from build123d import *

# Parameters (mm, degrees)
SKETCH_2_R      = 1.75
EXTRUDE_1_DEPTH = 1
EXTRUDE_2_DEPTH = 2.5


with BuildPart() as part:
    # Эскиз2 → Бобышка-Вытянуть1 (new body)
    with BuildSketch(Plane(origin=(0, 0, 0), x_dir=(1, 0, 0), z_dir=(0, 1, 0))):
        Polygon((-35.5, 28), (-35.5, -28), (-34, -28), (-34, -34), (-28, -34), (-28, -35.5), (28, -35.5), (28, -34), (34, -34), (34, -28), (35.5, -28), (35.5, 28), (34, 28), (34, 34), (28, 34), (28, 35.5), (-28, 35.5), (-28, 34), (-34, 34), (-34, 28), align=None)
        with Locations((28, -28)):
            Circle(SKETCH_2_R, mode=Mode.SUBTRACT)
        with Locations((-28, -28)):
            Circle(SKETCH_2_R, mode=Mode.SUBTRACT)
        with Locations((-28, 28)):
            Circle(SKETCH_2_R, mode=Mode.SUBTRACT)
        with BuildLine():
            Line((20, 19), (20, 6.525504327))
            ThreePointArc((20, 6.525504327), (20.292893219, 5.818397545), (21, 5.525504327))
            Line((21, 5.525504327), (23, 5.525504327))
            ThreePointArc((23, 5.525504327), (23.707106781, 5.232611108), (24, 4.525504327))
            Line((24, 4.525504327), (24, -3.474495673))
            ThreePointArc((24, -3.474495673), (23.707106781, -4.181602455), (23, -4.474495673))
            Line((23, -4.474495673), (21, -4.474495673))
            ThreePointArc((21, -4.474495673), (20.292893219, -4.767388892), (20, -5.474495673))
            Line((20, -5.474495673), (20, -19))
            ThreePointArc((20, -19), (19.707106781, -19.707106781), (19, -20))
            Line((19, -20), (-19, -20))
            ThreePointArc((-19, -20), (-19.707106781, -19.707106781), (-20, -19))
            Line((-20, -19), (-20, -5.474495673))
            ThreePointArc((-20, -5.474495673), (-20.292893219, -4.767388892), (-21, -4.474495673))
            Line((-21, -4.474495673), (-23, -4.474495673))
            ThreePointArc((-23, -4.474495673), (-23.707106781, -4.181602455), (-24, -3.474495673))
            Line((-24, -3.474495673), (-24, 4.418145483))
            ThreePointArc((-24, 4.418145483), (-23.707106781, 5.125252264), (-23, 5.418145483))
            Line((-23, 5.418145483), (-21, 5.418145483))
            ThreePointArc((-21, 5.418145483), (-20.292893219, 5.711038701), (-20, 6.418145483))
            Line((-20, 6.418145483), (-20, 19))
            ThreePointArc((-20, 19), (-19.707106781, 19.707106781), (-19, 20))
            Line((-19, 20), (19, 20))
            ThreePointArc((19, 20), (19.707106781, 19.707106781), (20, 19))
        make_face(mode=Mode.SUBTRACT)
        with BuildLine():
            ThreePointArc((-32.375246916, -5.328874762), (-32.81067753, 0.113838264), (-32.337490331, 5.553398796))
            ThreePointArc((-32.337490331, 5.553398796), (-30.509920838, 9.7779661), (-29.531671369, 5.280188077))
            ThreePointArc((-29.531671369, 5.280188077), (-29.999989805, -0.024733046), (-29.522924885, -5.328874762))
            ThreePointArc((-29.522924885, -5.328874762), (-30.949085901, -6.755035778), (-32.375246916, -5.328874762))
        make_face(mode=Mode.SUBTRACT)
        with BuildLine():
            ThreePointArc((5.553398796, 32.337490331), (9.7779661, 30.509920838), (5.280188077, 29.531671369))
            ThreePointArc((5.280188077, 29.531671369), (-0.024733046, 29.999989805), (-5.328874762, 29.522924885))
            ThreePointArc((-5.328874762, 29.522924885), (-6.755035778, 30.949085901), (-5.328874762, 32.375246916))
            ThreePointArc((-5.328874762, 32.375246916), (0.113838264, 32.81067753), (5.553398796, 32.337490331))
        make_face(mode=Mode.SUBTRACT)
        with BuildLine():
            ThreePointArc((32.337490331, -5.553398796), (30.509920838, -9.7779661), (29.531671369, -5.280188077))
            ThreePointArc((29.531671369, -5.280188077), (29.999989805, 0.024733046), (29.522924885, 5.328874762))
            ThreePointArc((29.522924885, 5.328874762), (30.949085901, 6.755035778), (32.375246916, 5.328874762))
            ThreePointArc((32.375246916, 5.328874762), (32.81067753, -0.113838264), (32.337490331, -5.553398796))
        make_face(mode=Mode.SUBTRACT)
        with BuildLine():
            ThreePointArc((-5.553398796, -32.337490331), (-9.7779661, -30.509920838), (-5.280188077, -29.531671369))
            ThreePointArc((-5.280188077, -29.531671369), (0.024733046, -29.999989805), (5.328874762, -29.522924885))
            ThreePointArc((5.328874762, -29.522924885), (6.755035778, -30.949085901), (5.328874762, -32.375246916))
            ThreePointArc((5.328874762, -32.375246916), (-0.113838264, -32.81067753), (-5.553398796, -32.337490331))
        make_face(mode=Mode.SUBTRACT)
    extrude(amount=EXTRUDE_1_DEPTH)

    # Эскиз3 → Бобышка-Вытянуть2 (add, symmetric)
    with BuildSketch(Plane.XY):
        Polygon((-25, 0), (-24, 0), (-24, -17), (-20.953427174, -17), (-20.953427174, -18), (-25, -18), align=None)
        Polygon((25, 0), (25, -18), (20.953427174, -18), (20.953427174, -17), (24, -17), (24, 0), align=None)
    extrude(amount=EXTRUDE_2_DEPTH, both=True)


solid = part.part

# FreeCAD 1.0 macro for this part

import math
import FreeCAD as App
import Part
import Sketcher

V = App.Vector

doc = App.newDocument("Part")
body = doc.addObject("PartDesign::Body", "Body")

sketch1 = body.newObject("Sketcher::SketchObject", "Sketch")
sketch1.AttachmentSupport = (doc.getObject("XZ_Plane"), [""])
sketch1.MapMode = "FlatFace"
sketch1.addGeometry(Part.LineSegment(V(-35.5, -28, 0), V(-35.5, 28, 0)), False)
sketch1.addGeometry(Part.LineSegment(V(-35.5, 28, 0), V(-34, 28, 0)), False)
sketch1.addGeometry(Part.LineSegment(V(-34, 28, 0), V(-34, 34, 0)), False)
sketch1.addGeometry(Part.LineSegment(V(-34, 34, 0), V(-28, 34, 0)), False)
sketch1.addGeometry(Part.LineSegment(V(-28, 34, 0), V(-28, 35.5, 0)), False)
sketch1.addGeometry(Part.LineSegment(V(-28, 35.5, 0), V(28, 35.5, 0)), False)
sketch1.addGeometry(Part.LineSegment(V(28, 35.5, 0), V(28, 34, 0)), False)
sketch1.addGeometry(Part.LineSegment(V(28, 34, 0), V(34, 34, 0)), False)
sketch1.addGeometry(Part.LineSegment(V(34, 34, 0), V(34, 28, 0)), False)
sketch1.addGeometry(Part.LineSegment(V(34, 28, 0), V(35.5, 28, 0)), False)
sketch1.addGeometry(Part.LineSegment(V(35.5, 28, 0), V(35.5, -28, 0)), False)
sketch1.addGeometry(Part.LineSegment(V(35.5, -28, 0), V(34, -28, 0)), False)
sketch1.addGeometry(Part.LineSegment(V(34, -28, 0), V(34, -34, 0)), False)
sketch1.addGeometry(Part.LineSegment(V(34, -34, 0), V(28, -34, 0)), False)
sketch1.addGeometry(Part.LineSegment(V(28, -34, 0), V(28, -35.5, 0)), False)
sketch1.addGeometry(Part.LineSegment(V(28, -35.5, 0), V(-28, -35.5, 0)), False)
sketch1.addGeometry(Part.LineSegment(V(-28, -35.5, 0), V(-28, -34, 0)), False)
sketch1.addGeometry(Part.LineSegment(V(-28, -34, 0), V(-34, -34, 0)), False)
sketch1.addGeometry(Part.LineSegment(V(-34, -34, 0), V(-34, -28, 0)), False)
sketch1.addGeometry(Part.LineSegment(V(-34, -28, 0), V(-35.5, -28, 0)), False)
sketch1.addGeometry(Part.Circle(V(-28, 28, 0), V(0, 0, 1), 1.8), False)
sketch1.addGeometry(Part.ArcOfCircle(Part.Circle(V(0, 0, 0), V(0, 0, 1), 32.8), math.radians(80.65), math.radians(99.74)), False)
sketch1.addGeometry(Part.ArcOfCircle(Part.Circle(V(-7.4, 30.7, 0), V(0, 0, 1), 2.4), math.radians(41), math.radians(330)), False)
sketch1.addGeometry(Part.ArcOfCircle(Part.Circle(V(0, 0, 0), V(0, 0, 1), 30), math.radians(80), math.radians(100)), False)
sketch1.addGeometry(Part.ArcOfCircle(Part.Circle(V(5.3, 30.9, 0), V(0, 0, 1), 1.4), math.radians(-90), math.radians(90)), False)
sketch1.addGeometry(Part.Circle(V(28, 28, 0), V(0, 0, 1), 1.8), False)
sketch1.addGeometry(Part.ArcOfCircle(Part.Circle(V(0, 0, 0), V(0, 0, 1), 32.8), math.radians(-9.35), math.radians(9.74)), False)
sketch1.addGeometry(Part.ArcOfCircle(Part.Circle(V(30.7, 7.4, 0), V(0, 0, 1), 2.4), math.radians(-49), math.radians(240)), False)
sketch1.addGeometry(Part.ArcOfCircle(Part.Circle(V(0, 0, 0), V(0, 0, 1), 30), math.radians(-10), math.radians(10)), False)
sketch1.addGeometry(Part.ArcOfCircle(Part.Circle(V(30.9, -5.3, 0), V(0, 0, 1), 1.4), math.radians(180), math.radians(360)), False)
sketch1.addGeometry(Part.ArcOfCircle(Part.Circle(V(-30.9, 5.3, 0), V(0, 0, 1), 1.4), math.radians(0), math.radians(180)), False)
sketch1.addGeometry(Part.ArcOfCircle(Part.Circle(V(0, 0, 0), V(0, 0, 1), 32.8), math.radians(170.65), math.radians(189.74)), False)
sketch1.addGeometry(Part.ArcOfCircle(Part.Circle(V(-30.7, -7.4, 0), V(0, 0, 1), 2.4), math.radians(131), math.radians(420)), False)
sketch1.addGeometry(Part.ArcOfCircle(Part.Circle(V(0, 0, 0), V(0, 0, 1), 30), math.radians(170), math.radians(190)), False)
sketch1.addGeometry(Part.Circle(V(-28, -28, 0), V(0, 0, 1), 1.8), False)
sketch1.addGeometry(Part.ArcOfCircle(Part.Circle(V(19, -19, 0), V(0, 0, 1), 1), math.radians(-90), math.radians(0)), False)
sketch1.addGeometry(Part.LineSegment(V(20, -19, 0), V(20, -6.5, 0)), False)
sketch1.addGeometry(Part.ArcOfCircle(Part.Circle(V(21, -6.5, 0), V(0, 0, 1), 1), math.radians(90), math.radians(180)), False)
sketch1.addGeometry(Part.LineSegment(V(21, -5.5, 0), V(23, -5.5, 0)), False)
sketch1.addGeometry(Part.ArcOfCircle(Part.Circle(V(23, -4.5, 0), V(0, 0, 1), 1), math.radians(-90), math.radians(0)), False)
sketch1.addGeometry(Part.LineSegment(V(24, -4.5, 0), V(24, 3.5, 0)), False)
sketch1.addGeometry(Part.ArcOfCircle(Part.Circle(V(23, 3.5, 0), V(0, 0, 1), 1), math.radians(0), math.radians(90)), False)
sketch1.addGeometry(Part.LineSegment(V(23, 4.5, 0), V(21, 4.5, 0)), False)
sketch1.addGeometry(Part.ArcOfCircle(Part.Circle(V(21, 5.5, 0), V(0, 0, 1), 1), math.radians(-180), math.radians(-90)), False)
sketch1.addGeometry(Part.LineSegment(V(20, 5.5, 0), V(20, 19, 0)), False)
sketch1.addGeometry(Part.ArcOfCircle(Part.Circle(V(19, 19, 0), V(0, 0, 1), 1), math.radians(0), math.radians(90)), False)
sketch1.addGeometry(Part.LineSegment(V(19, 20, 0), V(-19, 20, 0)), False)
sketch1.addGeometry(Part.ArcOfCircle(Part.Circle(V(-19, 19, 0), V(0, 0, 1), 1), math.radians(90), math.radians(180)), False)
sketch1.addGeometry(Part.LineSegment(V(-20, 19, 0), V(-20, 5.5, 0)), False)
sketch1.addGeometry(Part.ArcOfCircle(Part.Circle(V(-21, 5.5, 0), V(0, 0, 1), 1), math.radians(-90), math.radians(0)), False)
sketch1.addGeometry(Part.LineSegment(V(-21, 4.5, 0), V(-23, 4.5, 0)), False)
sketch1.addGeometry(Part.ArcOfCircle(Part.Circle(V(-23, 3.5, 0), V(0, 0, 1), 1), math.radians(90), math.radians(180)), False)
sketch1.addGeometry(Part.LineSegment(V(-24, 3.5, 0), V(-24, -4.4, 0)), False)
sketch1.addGeometry(Part.ArcOfCircle(Part.Circle(V(-23, -4.4, 0), V(0, 0, 1), 1), math.radians(-180), math.radians(-90)), False)
sketch1.addGeometry(Part.LineSegment(V(-23, -5.4, 0), V(-21, -5.4, 0)), False)
sketch1.addGeometry(Part.ArcOfCircle(Part.Circle(V(-21, -6.4, 0), V(0, 0, 1), 1), math.radians(0), math.radians(90)), False)
sketch1.addGeometry(Part.LineSegment(V(-20, -6.4, 0), V(-20, -19, 0)), False)
sketch1.addGeometry(Part.ArcOfCircle(Part.Circle(V(-19, -19, 0), V(0, 0, 1), 1), math.radians(-180), math.radians(-90)), False)
sketch1.addGeometry(Part.LineSegment(V(-19, -20, 0), V(19, -20, 0)), False)
sketch1.addGeometry(Part.ArcOfCircle(Part.Circle(V(0, 0, 0), V(0, 0, 1), 32.8), math.radians(-99.35), math.radians(-80.26)), False)
sketch1.addGeometry(Part.ArcOfCircle(Part.Circle(V(7.4, -30.7, 0), V(0, 0, 1), 2.4), math.radians(-139), math.radians(150)), False)
sketch1.addGeometry(Part.ArcOfCircle(Part.Circle(V(0, 0, 0), V(0, 0, 1), 30), math.radians(-100), math.radians(-80)), False)
sketch1.addGeometry(Part.ArcOfCircle(Part.Circle(V(-5.3, -30.9, 0), V(0, 0, 1), 1.4), math.radians(90), math.radians(270)), False)
sketch1.addConstraint(Sketcher.Constraint("Coincident", 0, 2, 1, 1))
sketch1.addConstraint(Sketcher.Constraint("Coincident", 1, 2, 2, 1))
sketch1.addConstraint(Sketcher.Constraint("Coincident", 2, 2, 3, 1))
sketch1.addConstraint(Sketcher.Constraint("Coincident", 3, 2, 4, 1))
sketch1.addConstraint(Sketcher.Constraint("Coincident", 4, 2, 5, 1))
sketch1.addConstraint(Sketcher.Constraint("Coincident", 5, 2, 6, 1))
sketch1.addConstraint(Sketcher.Constraint("Coincident", 6, 2, 7, 1))
sketch1.addConstraint(Sketcher.Constraint("Coincident", 7, 2, 8, 1))
sketch1.addConstraint(Sketcher.Constraint("Coincident", 8, 2, 9, 1))
sketch1.addConstraint(Sketcher.Constraint("Coincident", 9, 2, 10, 1))
sketch1.addConstraint(Sketcher.Constraint("Coincident", 10, 2, 11, 1))
sketch1.addConstraint(Sketcher.Constraint("Coincident", 11, 2, 12, 1))
sketch1.addConstraint(Sketcher.Constraint("Coincident", 12, 2, 13, 1))
sketch1.addConstraint(Sketcher.Constraint("Coincident", 13, 2, 14, 1))
sketch1.addConstraint(Sketcher.Constraint("Coincident", 14, 2, 15, 1))
sketch1.addConstraint(Sketcher.Constraint("Coincident", 15, 2, 16, 1))
sketch1.addConstraint(Sketcher.Constraint("Coincident", 16, 2, 17, 1))
sketch1.addConstraint(Sketcher.Constraint("Coincident", 17, 2, 18, 1))
sketch1.addConstraint(Sketcher.Constraint("Coincident", 18, 2, 19, 1))
sketch1.addConstraint(Sketcher.Constraint("Coincident", 19, 2, 0, 1))
sketch1.addConstraint(Sketcher.Constraint("Coincident", 21, 2, 22, 1))
sketch1.addConstraint(Sketcher.Constraint("Coincident", 22, 2, 23, 2))
sketch1.addConstraint(Sketcher.Constraint("Coincident", 23, 1, 24, 1))
sketch1.addConstraint(Sketcher.Constraint("Coincident", 24, 2, 21, 1))
sketch1.addConstraint(Sketcher.Constraint("Coincident", 26, 2, 27, 1))
sketch1.addConstraint(Sketcher.Constraint("Coincident", 27, 2, 28, 2))
sketch1.addConstraint(Sketcher.Constraint("Coincident", 28, 1, 29, 1))
sketch1.addConstraint(Sketcher.Constraint("Coincident", 29, 2, 26, 1))
sketch1.addConstraint(Sketcher.Constraint("Coincident", 30, 2, 31, 1))
sketch1.addConstraint(Sketcher.Constraint("Coincident", 31, 2, 32, 1))
sketch1.addConstraint(Sketcher.Constraint("Coincident", 32, 2, 33, 2))
sketch1.addConstraint(Sketcher.Constraint("Coincident", 33, 1, 30, 1))
sketch1.addConstraint(Sketcher.Constraint("Tangent", 35, 2, 36, 1))
sketch1.addConstraint(Sketcher.Constraint("Tangent", 36, 2, 37, 2))
sketch1.addConstraint(Sketcher.Constraint("Tangent", 37, 1, 38, 1))
sketch1.addConstraint(Sketcher.Constraint("Tangent", 38, 2, 39, 1))
sketch1.addConstraint(Sketcher.Constraint("Tangent", 39, 2, 40, 1))
sketch1.addConstraint(Sketcher.Constraint("Tangent", 40, 2, 41, 1))
sketch1.addConstraint(Sketcher.Constraint("Tangent", 41, 2, 42, 1))
sketch1.addConstraint(Sketcher.Constraint("Tangent", 42, 2, 43, 2))
sketch1.addConstraint(Sketcher.Constraint("Tangent", 43, 1, 44, 1))
sketch1.addConstraint(Sketcher.Constraint("Tangent", 44, 2, 45, 1))
sketch1.addConstraint(Sketcher.Constraint("Tangent", 45, 2, 46, 1))
sketch1.addConstraint(Sketcher.Constraint("Tangent", 46, 2, 47, 1))
sketch1.addConstraint(Sketcher.Constraint("Tangent", 47, 2, 48, 1))
sketch1.addConstraint(Sketcher.Constraint("Tangent", 48, 2, 49, 2))
sketch1.addConstraint(Sketcher.Constraint("Tangent", 49, 1, 50, 1))
sketch1.addConstraint(Sketcher.Constraint("Tangent", 50, 2, 51, 1))
sketch1.addConstraint(Sketcher.Constraint("Tangent", 51, 2, 52, 1))
sketch1.addConstraint(Sketcher.Constraint("Tangent", 52, 2, 53, 1))
sketch1.addConstraint(Sketcher.Constraint("Tangent", 53, 2, 54, 1))
sketch1.addConstraint(Sketcher.Constraint("Tangent", 54, 2, 55, 2))
sketch1.addConstraint(Sketcher.Constraint("Tangent", 55, 1, 56, 1))
sketch1.addConstraint(Sketcher.Constraint("Tangent", 56, 2, 57, 1))
sketch1.addConstraint(Sketcher.Constraint("Tangent", 57, 2, 58, 1))
sketch1.addConstraint(Sketcher.Constraint("Tangent", 58, 2, 35, 1))
sketch1.addConstraint(Sketcher.Constraint("Coincident", 59, 2, 60, 1))
sketch1.addConstraint(Sketcher.Constraint("Coincident", 60, 2, 61, 2))
sketch1.addConstraint(Sketcher.Constraint("Coincident", 61, 1, 62, 1))
sketch1.addConstraint(Sketcher.Constraint("Coincident", 62, 2, 59, 1))
sketch1.addConstraint(Sketcher.Constraint("Vertical", 0))
sketch1.addConstraint(Sketcher.Constraint("Horizontal", 1))
sketch1.addConstraint(Sketcher.Constraint("Vertical", 2))
sketch1.addConstraint(Sketcher.Constraint("Horizontal", 3))
sketch1.addConstraint(Sketcher.Constraint("Vertical", 4))
sketch1.addConstraint(Sketcher.Constraint("Horizontal", 5))
sketch1.addConstraint(Sketcher.Constraint("Vertical", 6))
sketch1.addConstraint(Sketcher.Constraint("Horizontal", 7))
sketch1.addConstraint(Sketcher.Constraint("Vertical", 8))
sketch1.addConstraint(Sketcher.Constraint("Horizontal", 9))
sketch1.addConstraint(Sketcher.Constraint("Vertical", 10))
sketch1.addConstraint(Sketcher.Constraint("Horizontal", 11))
sketch1.addConstraint(Sketcher.Constraint("Vertical", 12))
sketch1.addConstraint(Sketcher.Constraint("Horizontal", 13))
sketch1.addConstraint(Sketcher.Constraint("Vertical", 14))
sketch1.addConstraint(Sketcher.Constraint("Horizontal", 15))
sketch1.addConstraint(Sketcher.Constraint("Vertical", 16))
sketch1.addConstraint(Sketcher.Constraint("Horizontal", 17))
sketch1.addConstraint(Sketcher.Constraint("Vertical", 18))
sketch1.addConstraint(Sketcher.Constraint("Horizontal", 19))
sketch1.addConstraint(Sketcher.Constraint("Vertical", 36))
sketch1.addConstraint(Sketcher.Constraint("Horizontal", 38))
sketch1.addConstraint(Sketcher.Constraint("Vertical", 40))
sketch1.addConstraint(Sketcher.Constraint("Horizontal", 42))
sketch1.addConstraint(Sketcher.Constraint("Vertical", 44))
sketch1.addConstraint(Sketcher.Constraint("Horizontal", 46))
sketch1.addConstraint(Sketcher.Constraint("Vertical", 48))
sketch1.addConstraint(Sketcher.Constraint("Horizontal", 50))
sketch1.addConstraint(Sketcher.Constraint("Vertical", 52))
sketch1.addConstraint(Sketcher.Constraint("Horizontal", 54))
sketch1.addConstraint(Sketcher.Constraint("Vertical", 56))
sketch1.addConstraint(Sketcher.Constraint("Horizontal", 58))
sketch1.addConstraint(Sketcher.Constraint("Coincident", 21, 3, -1, 1))
sketch1.addConstraint(Sketcher.Constraint("Coincident", 23, 3, -1, 1))
sketch1.addConstraint(Sketcher.Constraint("Coincident", 26, 3, -1, 1))
sketch1.addConstraint(Sketcher.Constraint("Coincident", 28, 3, -1, 1))
sketch1.addConstraint(Sketcher.Constraint("Coincident", 31, 3, -1, 1))
sketch1.addConstraint(Sketcher.Constraint("Coincident", 33, 3, -1, 1))
sketch1.addConstraint(Sketcher.Constraint("Coincident", 59, 3, -1, 1))
sketch1.addConstraint(Sketcher.Constraint("Coincident", 61, 3, -1, 1))
sketch1.addConstraint(Sketcher.Constraint("Equal", 20, 25))
sketch1.addConstraint(Sketcher.Constraint("Equal", 21, 26))
sketch1.addConstraint(Sketcher.Constraint("Equal", 22, 27))
sketch1.addConstraint(Sketcher.Constraint("Equal", 23, 28))
sketch1.addConstraint(Sketcher.Constraint("Equal", 24, 29))
sketch1.addConstraint(Sketcher.Constraint("Equal", 29, 30))
sketch1.addConstraint(Sketcher.Constraint("Equal", 26, 31))
sketch1.addConstraint(Sketcher.Constraint("Equal", 27, 32))
sketch1.addConstraint(Sketcher.Constraint("Equal", 28, 33))
sketch1.addConstraint(Sketcher.Constraint("Equal", 25, 34))
sketch1.addConstraint(Sketcher.Constraint("Equal", 35, 37))
sketch1.addConstraint(Sketcher.Constraint("Equal", 37, 39))
sketch1.addConstraint(Sketcher.Constraint("Equal", 39, 41))
sketch1.addConstraint(Sketcher.Constraint("Equal", 41, 43))
sketch1.addConstraint(Sketcher.Constraint("Equal", 43, 45))
sketch1.addConstraint(Sketcher.Constraint("Equal", 45, 47))
sketch1.addConstraint(Sketcher.Constraint("Equal", 47, 49))
sketch1.addConstraint(Sketcher.Constraint("Equal", 49, 51))
sketch1.addConstraint(Sketcher.Constraint("Equal", 51, 53))
sketch1.addConstraint(Sketcher.Constraint("Equal", 53, 55))
sketch1.addConstraint(Sketcher.Constraint("Equal", 55, 57))
sketch1.addConstraint(Sketcher.Constraint("Equal", 31, 59))
sketch1.addConstraint(Sketcher.Constraint("Equal", 32, 60))
sketch1.addConstraint(Sketcher.Constraint("Equal", 33, 61))
sketch1.addConstraint(Sketcher.Constraint("Equal", 30, 62))
sketch1.addConstraint(Sketcher.Constraint("Symmetric", 29, 3, 30, 3, -1, 1))
sketch1.addConstraint(Sketcher.Constraint("Symmetric", 27, 3, 32, 3, -1, 1))
sketch1.addConstraint(Sketcher.Constraint("Symmetric", 25, 3, 34, 3, -1, 1))
sketch1.addConstraint(Sketcher.Constraint("Symmetric", 35, 3, 47, 3, -1, 1))
sketch1.addConstraint(Sketcher.Constraint("Symmetric", 22, 3, 60, 3, -1, 1))
sketch1.addConstraint(Sketcher.Constraint("Symmetric", 24, 3, 62, 3, -1, 1))
sketch1.addConstraint(Sketcher.Constraint("Symmetric", 0, 2, 10, 2, -1, 1))
sketch1.addConstraint(Sketcher.Constraint("Symmetric", 2, 2, 12, 2, -1, 1))
sketch1.addConstraint(Sketcher.Constraint("Symmetric", 4, 2, 14, 2, -1, 1))
sketch1.addConstraint(Sketcher.Constraint("Symmetric", 6, 2, 16, 2, -1, 1))
sketch1.addConstraint(Sketcher.Constraint("Symmetric", 8, 2, 18, 2, -1, 1))
sketch1.addConstraint(Sketcher.Constraint("Symmetric", 20, 3, 25, 3, -2))
sketch1.addConstraint(Sketcher.Constraint("Symmetric", 43, 3, 49, 3, -2))
sketch1.addConstraint(Sketcher.Constraint("Symmetric", 3, 2, 6, 2, -2))
sketch1.addConstraint(Sketcher.Constraint("Symmetric", 1, 2, 8, 2, -2))
sketch1.addConstraint(Sketcher.Constraint("Horizontal", 25, 3, 0, 2))
sketch1.addConstraint(Sketcher.Constraint("Horizontal", 29, 3, 28, 1))
sketch1.addConstraint(Sketcher.Constraint("Horizontal", 28, 1, 29, 2))
sketch1.addConstraint(Sketcher.Constraint("Vertical", 49, 3, 55, 3))
sketch1.addConstraint(Sketcher.Constraint("Vertical", 34, 3, 3, 2))
sketch1.addConstraint(Sketcher.Constraint("Vertical", 24, 3, 23, 1))
sketch1.addConstraint(Sketcher.Constraint("Vertical", 23, 1, 24, 2))
sketch1.addConstraint(Sketcher.Constraint("Equal", 42, 50))
sketch1.addConstraint(Sketcher.Constraint("Equal", 15, 0))
sketch1.addConstraint(Sketcher.Constraint("Equal", 17, 2))
sketch1.addConstraint(Sketcher.Constraint("Equal", 19, 4))
sketch1.addConstraint(Sketcher.Constraint("Radius", 23, 30.0))
sketch1.addConstraint(Sketcher.Constraint("Radius", 35, 1.0))
sketch1.addConstraint(Sketcher.Constraint("Diameter", 20, 3.5))
sketch1.addConstraint(Sketcher.Constraint("DistanceX", 3, 1, 3, 2, 6.0))
sketch1.addConstraint(Sketcher.Constraint("DistanceX", 5, 1, 5, 2, 56.0))
sketch1.addConstraint(Sketcher.Constraint("DistanceX", 38, 1, 38, 2, 2.0))
sketch1.addConstraint(Sketcher.Constraint("DistanceX", 46, 2, 46, 1, 38.0))
sketch1.addConstraint(Sketcher.Constraint("DistanceY", 40, 1, 40, 2, 8.0))
sketch1.addConstraint(Sketcher.Constraint("DistanceX", 1, 1, 1, 2, 1.5))
sketch1.addConstraint(Sketcher.Constraint("DistanceY", 35, 3, -1, 1, 19.0))
sketch1.addConstraint(Sketcher.Constraint("Radius", 22, 2.417612))
sketch1.addConstraint(Sketcher.Constraint("Radius", 24, 1.426161))
sketch1.addConstraint(Sketcher.Constraint("Radius", 21, 32.810875))
sketch1.addConstraint(Sketcher.Constraint("DistanceY", 52, 2, 52, 1, 7.892641))
sketch1.addConstraint(Sketcher.Constraint("DistanceX", 21, 2, -1, 1, 5.553399))
sketch1.addConstraint(Sketcher.Constraint("DistanceY", -1, 1, 26, 2, 5.553399))
sketch1.addConstraint(Sketcher.Constraint("DistanceY", 36, 1, 36, 2, 12.474496))
sketch1.addConstraint(Sketcher.Constraint("DistanceX", 22, 2, -1, 1, 5.280188))
sketch1.addConstraint(Sketcher.Constraint("DistanceX", -1, 1, 27, 2, 29.531671))
pad1 = body.newObject("PartDesign::Pad", "Pad")
pad1.Profile = sketch1
pad1.Length = 1
pad1.Reversed = True

sketch2 = body.newObject("Sketcher::SketchObject", "Sketch001")
sketch2.AttachmentSupport = (doc.getObject("XY_Plane"), [""])
sketch2.MapMode = "FlatFace"
sketch2.addGeometry(Part.LineSegment(V(-24, 0, 0), V(-25, 0, 0)), False)
sketch2.addGeometry(Part.LineSegment(V(-25, 0, 0), V(-25, -18, 0)), False)
sketch2.addGeometry(Part.LineSegment(V(-25, -18, 0), V(-21, -18, 0)), False)
sketch2.addGeometry(Part.LineSegment(V(-21, -18, 0), V(-21, -17, 0)), False)
sketch2.addGeometry(Part.LineSegment(V(-21, -17, 0), V(-24, -17, 0)), False)
sketch2.addGeometry(Part.LineSegment(V(-24, -17, 0), V(-24, 0, 0)), False)
sketch2.addGeometry(Part.LineSegment(V(25, -18, 0), V(25, 0, 0)), False)
sketch2.addGeometry(Part.LineSegment(V(25, 0, 0), V(24, 0, 0)), False)
sketch2.addGeometry(Part.LineSegment(V(24, 0, 0), V(24, -17, 0)), False)
sketch2.addGeometry(Part.LineSegment(V(24, -17, 0), V(21, -17, 0)), False)
sketch2.addGeometry(Part.LineSegment(V(21, -17, 0), V(21, -18, 0)), False)
sketch2.addGeometry(Part.LineSegment(V(21, -18, 0), V(25, -18, 0)), False)
sketch2.addConstraint(Sketcher.Constraint("Coincident", 0, 2, 1, 1))
sketch2.addConstraint(Sketcher.Constraint("Coincident", 1, 2, 2, 1))
sketch2.addConstraint(Sketcher.Constraint("Coincident", 2, 2, 3, 1))
sketch2.addConstraint(Sketcher.Constraint("Coincident", 3, 2, 4, 1))
sketch2.addConstraint(Sketcher.Constraint("Coincident", 4, 2, 5, 1))
sketch2.addConstraint(Sketcher.Constraint("Coincident", 5, 2, 0, 1))
sketch2.addConstraint(Sketcher.Constraint("Coincident", 6, 2, 7, 1))
sketch2.addConstraint(Sketcher.Constraint("Coincident", 7, 2, 8, 1))
sketch2.addConstraint(Sketcher.Constraint("Coincident", 8, 2, 9, 1))
sketch2.addConstraint(Sketcher.Constraint("Coincident", 9, 2, 10, 1))
sketch2.addConstraint(Sketcher.Constraint("Coincident", 10, 2, 11, 1))
sketch2.addConstraint(Sketcher.Constraint("Coincident", 11, 2, 6, 1))
sketch2.addConstraint(Sketcher.Constraint("Horizontal", 0))
sketch2.addConstraint(Sketcher.Constraint("Vertical", 1))
sketch2.addConstraint(Sketcher.Constraint("Horizontal", 2))
sketch2.addConstraint(Sketcher.Constraint("Vertical", 3))
sketch2.addConstraint(Sketcher.Constraint("Horizontal", 4))
sketch2.addConstraint(Sketcher.Constraint("Vertical", 5))
sketch2.addConstraint(Sketcher.Constraint("Vertical", 6))
sketch2.addConstraint(Sketcher.Constraint("Horizontal", 7))
sketch2.addConstraint(Sketcher.Constraint("Vertical", 8))
sketch2.addConstraint(Sketcher.Constraint("Horizontal", 9))
sketch2.addConstraint(Sketcher.Constraint("Vertical", 10))
sketch2.addConstraint(Sketcher.Constraint("Horizontal", 11))
sketch2.addConstraint(Sketcher.Constraint("Symmetric", 0, 2, 6, 2, -1, 1))
sketch2.addConstraint(Sketcher.Constraint("Symmetric", 5, 2, 7, 2, -2))
sketch2.addConstraint(Sketcher.Constraint("Symmetric", 3, 2, 9, 2, -2))
sketch2.addConstraint(Sketcher.Constraint("Horizontal", 2, 2, 10, 2))
sketch2.addConstraint(Sketcher.Constraint("Equal", 7, 3))
sketch2.addConstraint(Sketcher.Constraint("DistanceX", 0, 2, 0, 1, 1.0))
sketch2.addConstraint(Sketcher.Constraint("DistanceY", 1, 2, 1, 1, 18.0))
sketch2.addConstraint(Sketcher.Constraint("DistanceX", 0, 2, -1, 1, 25.0))
sketch2.addConstraint(Sketcher.Constraint("DistanceX", 2, 1, 2, 2, 4.046573))
pad2 = body.newObject("PartDesign::Pad", "Pad001")
pad2.Profile = sketch2
pad2.Length = 5
pad2.Midplane = True

doc.recompute()
